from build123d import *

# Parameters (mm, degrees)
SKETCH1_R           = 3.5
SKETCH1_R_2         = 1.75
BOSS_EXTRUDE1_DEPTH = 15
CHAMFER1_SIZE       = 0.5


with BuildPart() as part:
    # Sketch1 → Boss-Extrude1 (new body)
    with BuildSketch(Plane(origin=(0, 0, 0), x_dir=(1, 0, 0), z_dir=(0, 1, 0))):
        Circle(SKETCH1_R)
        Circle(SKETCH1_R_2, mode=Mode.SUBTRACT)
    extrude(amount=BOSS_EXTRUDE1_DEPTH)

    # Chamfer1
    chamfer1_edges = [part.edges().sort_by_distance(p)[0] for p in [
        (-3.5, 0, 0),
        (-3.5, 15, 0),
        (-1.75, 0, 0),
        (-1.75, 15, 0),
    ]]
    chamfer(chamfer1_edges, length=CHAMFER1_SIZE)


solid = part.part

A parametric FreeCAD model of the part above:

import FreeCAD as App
import Part
import Sketcher


def edges_at(feature, points):
    """Names of the edges that pass closest to the given points."""
    edges = feature.Shape.Edges
    near = lambda p: min(range(len(edges)), key=lambda i: edges[i].distToShape(Part.Vertex(*p))[0])
    return sorted({f"Edge{near(p) + 1}" for p in points})

doc = App.newDocument("Part")
body = doc.addObject("PartDesign::Body", "Body")

# Sketch on XZ plane
sketch1 = body.newObject("Sketcher::SketchObject", "Sketch")
sketch1.AttachmentSupport = (doc.getObject("XZ_Plane"), [""])
sketch1.MapMode = "FlatFace"
sketch1.addGeometry([
    Part.Circle(App.Vector(0, 0, 0), App.Vector(0, 0, 1), 3.5),
    Part.Circle(App.Vector(0, 0, 0), App.Vector(0, 0, 1), 1.8),
], False)
sketch1.addConstraint([
    Sketcher.Constraint("Coincident", 0, 3, -1, 1),
    Sketcher.Constraint("Coincident", 1, 3, -1, 1),
    Sketcher.Constraint("Diameter", 0, 7.0),
    Sketcher.Constraint("Diameter", 1, 3.5),
])
pad1 = body.newObject("PartDesign::Pad", "Pad")
pad1.Profile = sketch1
pad1.Length = 15
pad1.Reversed = True
doc.recompute()

chamfer = body.newObject("PartDesign::Chamfer", "Chamfer")
chamfer.Base = (pad1, edges_at(pad1, [
    (-3.5, 0, 0),
    (-3.5, 15, 0),
    (-1.75, 0, 0),
    (-1.75, 15, 0),
]))
chamfer.Size = 0.5

doc.recompute()
